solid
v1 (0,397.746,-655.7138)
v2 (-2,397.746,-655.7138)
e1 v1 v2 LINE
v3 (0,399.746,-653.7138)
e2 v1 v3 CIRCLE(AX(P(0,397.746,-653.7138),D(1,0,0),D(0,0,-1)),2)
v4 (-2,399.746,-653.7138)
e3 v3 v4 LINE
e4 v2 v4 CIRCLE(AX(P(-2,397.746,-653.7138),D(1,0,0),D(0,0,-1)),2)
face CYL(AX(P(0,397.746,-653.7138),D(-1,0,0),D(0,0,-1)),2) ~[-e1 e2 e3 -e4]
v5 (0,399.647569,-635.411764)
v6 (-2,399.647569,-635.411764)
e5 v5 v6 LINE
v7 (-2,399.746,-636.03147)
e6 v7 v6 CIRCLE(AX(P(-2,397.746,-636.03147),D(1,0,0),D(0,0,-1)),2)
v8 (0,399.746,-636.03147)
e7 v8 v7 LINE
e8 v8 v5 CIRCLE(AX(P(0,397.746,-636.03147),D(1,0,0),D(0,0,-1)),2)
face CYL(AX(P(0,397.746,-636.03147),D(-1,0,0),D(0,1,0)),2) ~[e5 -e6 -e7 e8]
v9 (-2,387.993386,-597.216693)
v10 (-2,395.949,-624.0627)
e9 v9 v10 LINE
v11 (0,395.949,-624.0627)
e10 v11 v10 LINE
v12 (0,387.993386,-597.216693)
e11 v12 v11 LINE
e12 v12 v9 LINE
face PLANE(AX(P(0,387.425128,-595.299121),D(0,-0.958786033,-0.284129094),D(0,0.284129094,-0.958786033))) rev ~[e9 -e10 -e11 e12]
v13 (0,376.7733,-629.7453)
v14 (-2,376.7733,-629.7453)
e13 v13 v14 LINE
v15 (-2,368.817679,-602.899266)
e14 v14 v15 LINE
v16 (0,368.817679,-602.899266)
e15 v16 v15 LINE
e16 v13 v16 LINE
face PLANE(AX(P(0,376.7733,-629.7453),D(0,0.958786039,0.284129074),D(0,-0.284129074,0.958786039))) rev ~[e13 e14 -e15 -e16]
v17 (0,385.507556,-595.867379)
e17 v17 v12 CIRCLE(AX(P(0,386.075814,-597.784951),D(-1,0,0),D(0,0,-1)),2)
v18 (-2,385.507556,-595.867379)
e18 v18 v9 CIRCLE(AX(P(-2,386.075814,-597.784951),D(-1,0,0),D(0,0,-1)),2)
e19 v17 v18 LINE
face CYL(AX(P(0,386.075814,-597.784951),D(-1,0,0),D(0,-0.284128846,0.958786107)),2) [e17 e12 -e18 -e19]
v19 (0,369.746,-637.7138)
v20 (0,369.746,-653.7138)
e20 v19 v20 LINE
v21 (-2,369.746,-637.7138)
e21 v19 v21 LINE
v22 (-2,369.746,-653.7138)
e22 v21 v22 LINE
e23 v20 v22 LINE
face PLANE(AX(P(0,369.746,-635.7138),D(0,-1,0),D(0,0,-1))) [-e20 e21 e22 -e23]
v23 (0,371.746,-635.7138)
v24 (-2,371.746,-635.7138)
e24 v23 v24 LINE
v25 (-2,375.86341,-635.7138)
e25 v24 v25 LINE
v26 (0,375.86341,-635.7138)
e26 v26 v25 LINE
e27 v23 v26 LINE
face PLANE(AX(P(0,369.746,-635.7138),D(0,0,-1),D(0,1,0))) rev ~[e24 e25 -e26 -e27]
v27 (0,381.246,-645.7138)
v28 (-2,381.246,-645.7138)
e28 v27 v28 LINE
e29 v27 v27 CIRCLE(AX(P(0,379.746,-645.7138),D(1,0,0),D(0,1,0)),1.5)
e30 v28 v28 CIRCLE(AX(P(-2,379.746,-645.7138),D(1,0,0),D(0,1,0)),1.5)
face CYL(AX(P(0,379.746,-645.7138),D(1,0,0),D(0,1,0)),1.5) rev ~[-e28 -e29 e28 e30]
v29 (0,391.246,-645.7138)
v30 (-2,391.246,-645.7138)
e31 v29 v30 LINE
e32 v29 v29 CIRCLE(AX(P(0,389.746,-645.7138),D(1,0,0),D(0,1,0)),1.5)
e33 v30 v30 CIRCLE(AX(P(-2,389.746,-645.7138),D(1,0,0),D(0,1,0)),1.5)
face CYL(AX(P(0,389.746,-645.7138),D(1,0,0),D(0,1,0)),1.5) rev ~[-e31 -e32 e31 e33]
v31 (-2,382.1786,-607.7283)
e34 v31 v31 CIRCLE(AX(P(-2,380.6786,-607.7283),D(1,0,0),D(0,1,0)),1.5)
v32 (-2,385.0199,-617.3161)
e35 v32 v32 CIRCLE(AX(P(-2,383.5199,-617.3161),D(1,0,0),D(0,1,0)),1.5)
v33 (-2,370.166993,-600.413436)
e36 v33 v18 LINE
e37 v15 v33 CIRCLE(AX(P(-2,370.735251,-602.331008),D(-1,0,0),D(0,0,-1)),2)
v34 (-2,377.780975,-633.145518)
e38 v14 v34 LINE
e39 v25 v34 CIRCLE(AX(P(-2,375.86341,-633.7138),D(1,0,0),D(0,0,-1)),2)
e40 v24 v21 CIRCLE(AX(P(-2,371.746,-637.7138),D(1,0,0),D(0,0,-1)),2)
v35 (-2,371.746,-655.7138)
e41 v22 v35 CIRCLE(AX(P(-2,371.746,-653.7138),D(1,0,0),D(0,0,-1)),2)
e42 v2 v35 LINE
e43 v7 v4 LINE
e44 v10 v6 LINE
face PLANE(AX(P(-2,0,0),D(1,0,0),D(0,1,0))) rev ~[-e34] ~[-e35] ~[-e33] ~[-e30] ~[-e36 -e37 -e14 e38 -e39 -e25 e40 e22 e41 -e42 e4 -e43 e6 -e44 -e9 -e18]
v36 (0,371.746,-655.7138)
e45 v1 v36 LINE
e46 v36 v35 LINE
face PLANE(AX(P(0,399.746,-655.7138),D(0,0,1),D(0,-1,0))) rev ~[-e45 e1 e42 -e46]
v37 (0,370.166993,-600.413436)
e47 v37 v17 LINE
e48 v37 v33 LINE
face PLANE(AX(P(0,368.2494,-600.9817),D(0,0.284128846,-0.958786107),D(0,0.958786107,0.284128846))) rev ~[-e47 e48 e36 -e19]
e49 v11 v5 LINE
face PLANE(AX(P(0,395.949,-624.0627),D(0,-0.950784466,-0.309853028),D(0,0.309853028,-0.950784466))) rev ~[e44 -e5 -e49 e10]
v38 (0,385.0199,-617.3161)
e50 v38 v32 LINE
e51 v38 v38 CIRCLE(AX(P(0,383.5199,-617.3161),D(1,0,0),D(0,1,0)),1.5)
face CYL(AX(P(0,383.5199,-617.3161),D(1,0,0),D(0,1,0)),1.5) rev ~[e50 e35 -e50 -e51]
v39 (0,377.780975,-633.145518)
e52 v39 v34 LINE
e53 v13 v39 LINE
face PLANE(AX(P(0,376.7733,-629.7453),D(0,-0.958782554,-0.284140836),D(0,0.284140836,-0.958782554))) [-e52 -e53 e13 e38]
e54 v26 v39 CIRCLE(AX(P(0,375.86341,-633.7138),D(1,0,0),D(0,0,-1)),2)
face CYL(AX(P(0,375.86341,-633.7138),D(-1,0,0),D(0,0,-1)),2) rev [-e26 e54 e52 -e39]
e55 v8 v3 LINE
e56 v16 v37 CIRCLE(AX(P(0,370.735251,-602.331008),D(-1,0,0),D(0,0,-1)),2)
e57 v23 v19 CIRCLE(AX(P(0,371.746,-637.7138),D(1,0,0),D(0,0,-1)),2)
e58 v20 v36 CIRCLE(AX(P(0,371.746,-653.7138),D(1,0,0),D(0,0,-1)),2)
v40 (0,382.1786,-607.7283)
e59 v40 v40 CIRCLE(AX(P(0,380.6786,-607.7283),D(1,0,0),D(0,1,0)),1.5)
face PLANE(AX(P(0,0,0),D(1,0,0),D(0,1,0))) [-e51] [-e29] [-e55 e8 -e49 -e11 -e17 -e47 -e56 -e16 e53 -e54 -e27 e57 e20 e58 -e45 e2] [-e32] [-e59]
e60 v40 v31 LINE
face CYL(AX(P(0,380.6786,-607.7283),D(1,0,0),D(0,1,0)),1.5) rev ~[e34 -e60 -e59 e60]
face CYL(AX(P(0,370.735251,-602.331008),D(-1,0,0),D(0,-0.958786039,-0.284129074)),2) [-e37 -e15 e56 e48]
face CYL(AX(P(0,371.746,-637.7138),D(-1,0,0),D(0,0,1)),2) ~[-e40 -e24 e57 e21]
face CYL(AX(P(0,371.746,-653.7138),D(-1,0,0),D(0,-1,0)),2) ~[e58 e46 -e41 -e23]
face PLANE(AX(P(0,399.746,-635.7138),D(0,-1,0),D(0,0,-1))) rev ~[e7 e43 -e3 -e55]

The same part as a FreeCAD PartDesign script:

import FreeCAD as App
import Part
import Sketcher
from FreeCAD import Vector
Q = App.Units.Quantity


def edges_at(feature, points):
    """Names of the edges that pass closest to the given points."""
    edges = feature.Shape.Edges
    near = lambda p: min(range(len(edges)), key=lambda i: edges[i].distToShape(Part.Vertex(*p))[0])
    return sorted({f"Edge{near(p) + 1}" for p in points})


def add_polygon(sketch, points):
    """Adds a closed chain of lines whose ends are joined by coincident constraints."""
    first, n = sketch.GeometryCount, len(points)
    for a, b in zip(points, points[1:] + points[:1]):
        sketch.addGeometry(Part.LineSegment(App.Vector(*a, 0), App.Vector(*b, 0)), False)
    for i in range(n):
        sketch.addConstraint(Sketcher.Constraint("Coincident", first + i, 2, first + (i + 1) % n, 1))

doc = App.newDocument("Part")
body = doc.addObject("PartDesign::Body", "Body")

sketch1 = doc.addObject("Sketcher::SketchObject", "Sketch")
body.addObject(sketch1)
sketch1.AttachmentSupport = (doc.YZ_Plane, [""])
sketch1.MapMode = "FlatFace"
add_polygon(sketch1, [(378.5421, -635.7138), (369.746, -635.7138), (369.746, -655.7138), (399.746, -655.7138), (399.746, -635.7138), (395.949, -624.0627), (387.4252, -595.2991), (368.24942, -600.981694), (376.7733, -629.7453)])
sketch1.addGeometry(Part.Circle(Vector(379.746, -645.7138, 0), Vector(0, 0, 1), 1.5), False)
sketch1.addGeometry(Part.Circle(Vector(389.746, -645.7138, 0), Vector(0, 0, 1), 1.5), False)
sketch1.addGeometry(Part.Circle(Vector(380.6786, -607.7283, 0), Vector(0, 0, 1), 1.5), False)
sketch1.addGeometry(Part.Circle(Vector(383.5199, -617.3161, 0), Vector(0, 0, 1), 1.5), False)
sketch1.addConstraint([
    Sketcher.Constraint("Horizontal", 0),
    Sketcher.Constraint("Vertical", 1),
    Sketcher.Constraint("Horizontal", 2),
    Sketcher.Constraint("Vertical", 3),
    Sketcher.Constraint("Equal", 9, 10),
    Sketcher.Constraint("Equal", 10, 11),
    Sketcher.Constraint("Equal", 11, 12),
    Sketcher.Constraint("Perpendicular", 5, 6),
    Sketcher.Constraint("Perpendicular", 6, 7),
    Sketcher.Constraint("Parallel", 7, 8),
    Sketcher.Constraint("Horizontal", 9, 3, 10, 3),
    Sketcher.Constraint("Horizontal", 0, 2, 3, 2),
    Sketcher.Constraint("Equal", 5, 7),
    Sketcher.Constraint("Diameter", 9, Q("3 mm")),
    Sketcher.Constraint("DistanceY", 1, 2, 1, 1, Q("20 mm")),
    Sketcher.Constraint("Distance", 6, Q("20 mm")),
    Sketcher.Constraint("DistanceX", 9, 3, 10, 3, Q("10 mm")),
    Sketcher.Constraint("DistanceX", 0, 2, 9, 3, Q("10 mm")),
    Sketcher.Constraint("DistanceY", 9, 3, 0, 2, Q("10 mm")),
    Sketcher.Constraint("DistanceX", 10, 3, 2, 2, Q("10 mm")),
    Sketcher.Constraint("Distance", 5, Q("30 mm")),
    Sketcher.Constraint("Angle", 4, Q("108.0504 deg")),
    Sketcher.Constraint("DistanceX", 0, 2, 0, 1, Q("8.796 mm")),
    Sketcher.Constraint("DistanceX", -1, 1, 12, 3, Q("383.52 mm")),
    Sketcher.Constraint("Distance", 8, Q("6.225 mm")),
    Sketcher.Constraint("DistanceX", -1, 1, 9, 3, Q("379.746 mm")),
    Sketcher.Constraint("DistanceY", 12, 3, -1, 1, Q("617.316 mm")),
    Sketcher.Constraint("DistanceY", 12, 3, 5, 2, Q("22.017 mm")),
    Sketcher.Constraint("DistanceX", -1, 1, 11, 3, Q("380.6786 mm")),
    Sketcher.Constraint("DistanceY", 11, 3, -1, 1, Q("607.7283 mm")),
])
pad1 = doc.addObject("PartDesign::Pad", "Pad")
body.addObject(pad1)
pad1.Profile = sketch1
pad1.Length = 2
pad1.Reversed = True
doc.recompute()

fillet = doc.addObject("PartDesign::Fillet", "Fillet")
body.addObject(fillet)
fillet.Base = (pad1, edges_at(pad1, [
    (-1, 368.249, -600.982),
    (-1, 378.542, -635.714),
    (-1, 369.746, -635.714),
    (-1, 369.746, -655.714),
    (-1, 399.746, -655.714),
    (-1, 399.746, -635.714),
    (-1, 387.425, -595.299),
]))
fillet.Radius = 2

doc.recompute()
